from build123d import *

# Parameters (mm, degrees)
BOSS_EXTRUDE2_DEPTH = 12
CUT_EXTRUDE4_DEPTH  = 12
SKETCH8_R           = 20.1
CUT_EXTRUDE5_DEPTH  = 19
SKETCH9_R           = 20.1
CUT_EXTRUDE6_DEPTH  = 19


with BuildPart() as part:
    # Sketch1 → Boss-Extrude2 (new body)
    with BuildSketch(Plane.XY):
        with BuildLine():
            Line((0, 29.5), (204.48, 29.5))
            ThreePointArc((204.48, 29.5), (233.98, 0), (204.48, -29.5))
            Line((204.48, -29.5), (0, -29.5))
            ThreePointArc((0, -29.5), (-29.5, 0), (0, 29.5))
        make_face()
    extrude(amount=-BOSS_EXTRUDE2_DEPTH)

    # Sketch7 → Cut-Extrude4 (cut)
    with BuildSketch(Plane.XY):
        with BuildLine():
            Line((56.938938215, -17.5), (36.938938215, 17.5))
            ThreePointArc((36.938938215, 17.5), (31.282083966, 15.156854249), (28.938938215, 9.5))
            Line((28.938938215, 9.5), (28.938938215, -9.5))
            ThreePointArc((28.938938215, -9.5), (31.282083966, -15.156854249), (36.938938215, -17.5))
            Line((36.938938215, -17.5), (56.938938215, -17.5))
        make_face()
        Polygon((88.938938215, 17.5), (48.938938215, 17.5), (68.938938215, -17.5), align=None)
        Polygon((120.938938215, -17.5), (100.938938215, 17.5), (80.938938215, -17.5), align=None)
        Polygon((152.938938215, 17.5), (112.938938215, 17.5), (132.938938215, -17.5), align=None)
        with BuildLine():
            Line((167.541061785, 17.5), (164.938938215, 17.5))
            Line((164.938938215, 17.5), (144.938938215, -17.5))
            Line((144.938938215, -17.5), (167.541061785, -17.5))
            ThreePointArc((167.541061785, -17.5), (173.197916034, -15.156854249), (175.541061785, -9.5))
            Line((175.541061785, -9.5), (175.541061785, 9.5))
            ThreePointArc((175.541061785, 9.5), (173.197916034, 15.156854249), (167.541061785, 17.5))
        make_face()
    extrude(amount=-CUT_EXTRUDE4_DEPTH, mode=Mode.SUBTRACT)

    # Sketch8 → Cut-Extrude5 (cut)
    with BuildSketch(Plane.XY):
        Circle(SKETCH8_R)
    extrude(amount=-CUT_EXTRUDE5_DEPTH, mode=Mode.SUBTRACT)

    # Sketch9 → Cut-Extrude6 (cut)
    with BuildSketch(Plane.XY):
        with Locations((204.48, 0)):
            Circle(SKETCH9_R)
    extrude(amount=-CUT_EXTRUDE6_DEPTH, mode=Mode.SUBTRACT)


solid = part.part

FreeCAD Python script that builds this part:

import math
import FreeCAD as App
import Part
import Sketcher


def add_polygon(sketch, points):
    """Adds a closed chain of lines whose ends are joined by coincident constraints."""
    first, n = sketch.GeometryCount, len(points)
    for a, b in zip(points, points[1:] + points[:1]):
        sketch.addGeometry(Part.LineSegment(App.Vector(*a, 0), App.Vector(*b, 0)), False)
    for i in range(n):
        sketch.addConstraint(Sketcher.Constraint("Coincident", first + i, 2, first + (i + 1) % n, 1))

doc = App.newDocument("Part")
params = doc.addObject("Spreadsheet::Sheet", "Params")
for row, (alias, value) in enumerate([
    ("sketch1_radius", "29.5 mm"),
    ("sketch1_width", "204.48 mm"),
    ("pad1_length", "12 mm"),
    ("sketch2_radius", "8 mm"),
    ("sketch2_width", "20 mm"),
    ("sketch2_height", "19 mm"),
    ("pocket1_length", "12 mm"),
    ("sketch3_diameter", "40.2 mm"),
    ("pocket2_length", "19 mm"),
    ("sketch4_diameter", "40.2 mm"),
    ("pocket3_length", "19 mm"),
], start=1):
    params.set(f"A{row}", alias)
    params.set(f"B{row}", "=" + value)
    params.setAlias(f"B{row}", alias)

body = doc.addObject("PartDesign::Body", "Body")

sketch1 = doc.addObject("Sketcher::SketchObject", "Sketch")
body.addObject(sketch1)
sketch1.AttachmentSupport = (doc.XY_Plane, [""])
sketch1.MapMode = "FlatFace"
sketch1.addGeometry(Part.LineSegment(App.Vector(204, 30, 0), App.Vector(0, 30, 0)), False)
sketch1.addGeometry(Part.ArcOfCircle(Part.Circle(App.Vector(0, 0, 0), App.Vector(0, 0, 1), 30), math.radians(90), math.radians(270)), False)
sketch1.addGeometry(Part.LineSegment(App.Vector(0, -30, 0), App.Vector(204, -30, 0)), False)
sketch1.addGeometry(Part.ArcOfCircle(Part.Circle(App.Vector(204, 0, 0), App.Vector(0, 0, 1), 30), math.radians(-90), math.radians(90)), False)
sketch1.addConstraint(Sketcher.Constraint("Tangent", 0, 2, 1, 1))
sketch1.addConstraint(Sketcher.Constraint("Tangent", 1, 2, 2, 1))
sketch1.addConstraint(Sketcher.Constraint("Tangent", 2, 2, 3, 1))
sketch1.addConstraint(Sketcher.Constraint("Tangent", 3, 2, 0, 1))
sketch1.addConstraint(Sketcher.Constraint("Horizontal", 0))
sketch1.addConstraint(Sketcher.Constraint("Horizontal", 2))
sketch1.addConstraint(Sketcher.Constraint("Coincident", 1, 3, -1, 1))
sketch1.addConstraint(Sketcher.Constraint("Radius", 1, 29.5))
sketch1.addConstraint(Sketcher.Constraint("DistanceX", 0, 2, 0, 1, 204.48))
sketch1.setExpression("Constraints[7]", "Params.sketch1_radius")
sketch1.setExpression("Constraints[8]", "Params.sketch1_width")
pad1 = doc.addObject("PartDesign::Pad", "Pad")
body.addObject(pad1)
pad1.Profile = sketch1
pad1.setExpression("Length", "Params.pad1_length")
pad1.Reversed = True

sketch2 = doc.addObject("Sketcher::SketchObject", "Sketch001")
body.addObject(sketch2)
sketch2.AttachmentSupport = (doc.XY_Plane, [""])
sketch2.MapMode = "FlatFace"
sketch2.addGeometry(Part.LineSegment(App.Vector(56.9, -17.5, 0), App.Vector(36.9, 17.5, 0)), False)
sketch2.addGeometry(Part.ArcOfCircle(Part.Circle(App.Vector(36.9, 9.5, 0), App.Vector(0, 0, 1), 8), math.radians(90), math.radians(180)), False)
sketch2.addGeometry(Part.LineSegment(App.Vector(28.9, 9.5, 0), App.Vector(28.9, -9.5, 0)), False)
sketch2.addGeometry(Part.ArcOfCircle(Part.Circle(App.Vector(36.9, -9.5, 0), App.Vector(0, 0, 1), 8), math.radians(-180), math.radians(-90)), False)
sketch2.addGeometry(Part.LineSegment(App.Vector(36.9, -17.5, 0), App.Vector(56.9, -17.5, 0)), False)
add_polygon(sketch2, [(88.9, 17.5), (48.9, 17.5), (68.9, -17.5)])
add_polygon(sketch2, [(120.9, -17.5), (100.9, 17.5), (80.9, -17.5)])
add_polygon(sketch2, [(152.9, 17.5), (112.9, 17.5), (132.9, -17.5)])
sketch2.addGeometry(Part.LineSegment(App.Vector(167.5, 17.5, 0), App.Vector(164.9, 17.5, 0)), False)
sketch2.addGeometry(Part.LineSegment(App.Vector(164.9, 17.5, 0), App.Vector(144.9, -17.5, 0)), False)
sketch2.addGeometry(Part.LineSegment(App.Vector(144.9, -17.5, 0), App.Vector(167.5, -17.5, 0)), False)
sketch2.addGeometry(Part.ArcOfCircle(Part.Circle(App.Vector(167.5, -9.5, 0), App.Vector(0, 0, 1), 8), math.radians(-90), math.radians(0)), False)
sketch2.addGeometry(Part.LineSegment(App.Vector(175.5, -9.5, 0), App.Vector(175.5, 9.5, 0)), False)
sketch2.addGeometry(Part.ArcOfCircle(Part.Circle(App.Vector(167.5, 9.5, 0), App.Vector(0, 0, 1), 8), math.radians(0), math.radians(90)), False)
sketch2.addConstraint(Sketcher.Constraint("Coincident", 0, 2, 1, 1))
sketch2.addConstraint(Sketcher.Constraint("Tangent", 1, 2, 2, 1))
sketch2.addConstraint(Sketcher.Constraint("Tangent", 2, 2, 3, 1))
sketch2.addConstraint(Sketcher.Constraint("Tangent", 3, 2, 4, 1))
sketch2.addConstraint(Sketcher.Constraint("Coincident", 4, 2, 0, 1))
sketch2.addConstraint(Sketcher.Constraint("Coincident", 14, 2, 15, 1))
sketch2.addConstraint(Sketcher.Constraint("Coincident", 15, 2, 16, 1))
sketch2.addConstraint(Sketcher.Constraint("Tangent", 16, 2, 17, 1))
sketch2.addConstraint(Sketcher.Constraint("Tangent", 17, 2, 18, 1))
sketch2.addConstraint(Sketcher.Constraint("Tangent", 18, 2, 19, 1))
sketch2.addConstraint(Sketcher.Constraint("Tangent", 19, 2, 14, 1))
sketch2.addConstraint(Sketcher.Constraint("Vertical", 2))
sketch2.addConstraint(Sketcher.Constraint("Horizontal", 4))
sketch2.addConstraint(Sketcher.Constraint("Horizontal", 5))
sketch2.addConstraint(Sketcher.Constraint("Horizontal", 10))
sketch2.addConstraint(Sketcher.Constraint("Horizontal", 11))
sketch2.addConstraint(Sketcher.Constraint("Horizontal", 14))
sketch2.addConstraint(Sketcher.Constraint("Horizontal", 16))
sketch2.addConstraint(Sketcher.Constraint("Vertical", 18))
sketch2.addConstraint(Sketcher.Constraint("Equal", 1, 3))
sketch2.addConstraint(Sketcher.Constraint("Equal", 3, 17))
sketch2.addConstraint(Sketcher.Constraint("Equal", 17, 19))
sketch2.addConstraint(Sketcher.Constraint("Symmetric", 0, 2, 3, 2, -1))
sketch2.addConstraint(Sketcher.Constraint("Parallel", 0, 6))
sketch2.addConstraint(Sketcher.Constraint("Parallel", 6, 8))
sketch2.addConstraint(Sketcher.Constraint("Parallel", 7, 9))
sketch2.addConstraint(Sketcher.Constraint("Parallel", 8, 12))
sketch2.addConstraint(Sketcher.Constraint("Parallel", 9, 13))
sketch2.addConstraint(Sketcher.Constraint("Parallel", 13, 15))
sketch2.addConstraint(Sketcher.Constraint("Horizontal", 3, 3, 17, 3))
sketch2.addConstraint(Sketcher.Constraint("Horizontal", 1, 3, 19, 3))
sketch2.addConstraint(Sketcher.Constraint("Horizontal", 0, 2, 5, 2))
sketch2.addConstraint(Sketcher.Constraint("Horizontal", 4, 2, 6, 2))
sketch2.addConstraint(Sketcher.Constraint("Horizontal", 7, 2, 8, 2))
sketch2.addConstraint(Sketcher.Constraint("Horizontal", 6, 2, 9, 2))
sketch2.addConstraint(Sketcher.Constraint("Horizontal", 8, 2, 11, 2))
sketch2.addConstraint(Sketcher.Constraint("Horizontal", 10, 2, 12, 2))
sketch2.addConstraint(Sketcher.Constraint("Equal", 6, 7))
sketch2.addConstraint(Sketcher.Constraint("Radius", 1, 8.0))
sketch2.addConstraint(Sketcher.Constraint("DistanceX", 4, 1, 4, 2, 20.0))
sketch2.addConstraint(Sketcher.Constraint("DistanceY", 2, 2, 2, 1, 19.0))
sketch2.addConstraint(Sketcher.Constraint("DistanceX", 0, 2, 5, 2, 12.0))
sketch2.addConstraint(Sketcher.Constraint("DistanceX", 7, 2, 8, 2, 12.0))
sketch2.addConstraint(Sketcher.Constraint("DistanceX", 8, 2, 11, 2, 12.0))
sketch2.addConstraint(Sketcher.Constraint("DistanceX", 13, 2, 14, 2, 12.0))
sketch2.addConstraint(Sketcher.Constraint("DistanceX", 14, 2, 14, 1, 2.602124))
sketch2.addConstraint(Sketcher.Constraint("DistanceX", -1, 1, 1, 3, 36.938938))
sketch2.setExpression("Constraints[47]", "Params.sketch2_radius")
sketch2.setExpression("Constraints[48]", "Params.sketch2_width")
sketch2.setExpression("Constraints[49]", "Params.sketch2_height")
pocket1 = doc.addObject("PartDesign::Pocket", "Pocket")
body.addObject(pocket1)
pocket1.Profile = sketch2
pocket1.setExpression("Length", "Params.pocket1_length")

sketch3 = doc.addObject("Sketcher::SketchObject", "Sketch002")
body.addObject(sketch3)
sketch3.AttachmentSupport = (doc.XY_Plane, [""])
sketch3.MapMode = "FlatFace"
sketch3.addGeometry(Part.Circle(App.Vector(0, 0, 0), App.Vector(0, 0, 1), 20), False)
sketch3.addConstraint(Sketcher.Constraint("Coincident", 0, 3, -1, 1))
sketch3.addConstraint(Sketcher.Constraint("Diameter", 0, 40.2))
sketch3.setExpression("Constraints[1]", "Params.sketch3_diameter")
pocket2 = doc.addObject("PartDesign::Pocket", "Pocket001")
body.addObject(pocket2)
pocket2.Profile = sketch3
pocket2.setExpression("Length", "Params.pocket2_length")

sketch4 = doc.addObject("Sketcher::SketchObject", "Sketch003")
body.addObject(sketch4)
sketch4.AttachmentSupport = (doc.XY_Plane, [""])
sketch4.MapMode = "FlatFace"
sketch4.addGeometry(Part.Circle(App.Vector(204, 0, 0), App.Vector(0, 0, 1), 20), False)
sketch4.addConstraint(Sketcher.Constraint("PointOnObject", 0, 3, -1))
sketch4.addConstraint(Sketcher.Constraint("Diameter", 0, 40.2))
sketch4.addConstraint(Sketcher.Constraint("DistanceX", -1, 1, 0, 3, 204.48))
sketch4.setExpression("Constraints[1]", "Params.sketch4_diameter")
pocket3 = doc.addObject("PartDesign::Pocket", "Pocket002")
body.addObject(pocket3)
pocket3.Profile = sketch4
pocket3.setExpression("Length", "Params.pocket3_length")

doc.recompute()
